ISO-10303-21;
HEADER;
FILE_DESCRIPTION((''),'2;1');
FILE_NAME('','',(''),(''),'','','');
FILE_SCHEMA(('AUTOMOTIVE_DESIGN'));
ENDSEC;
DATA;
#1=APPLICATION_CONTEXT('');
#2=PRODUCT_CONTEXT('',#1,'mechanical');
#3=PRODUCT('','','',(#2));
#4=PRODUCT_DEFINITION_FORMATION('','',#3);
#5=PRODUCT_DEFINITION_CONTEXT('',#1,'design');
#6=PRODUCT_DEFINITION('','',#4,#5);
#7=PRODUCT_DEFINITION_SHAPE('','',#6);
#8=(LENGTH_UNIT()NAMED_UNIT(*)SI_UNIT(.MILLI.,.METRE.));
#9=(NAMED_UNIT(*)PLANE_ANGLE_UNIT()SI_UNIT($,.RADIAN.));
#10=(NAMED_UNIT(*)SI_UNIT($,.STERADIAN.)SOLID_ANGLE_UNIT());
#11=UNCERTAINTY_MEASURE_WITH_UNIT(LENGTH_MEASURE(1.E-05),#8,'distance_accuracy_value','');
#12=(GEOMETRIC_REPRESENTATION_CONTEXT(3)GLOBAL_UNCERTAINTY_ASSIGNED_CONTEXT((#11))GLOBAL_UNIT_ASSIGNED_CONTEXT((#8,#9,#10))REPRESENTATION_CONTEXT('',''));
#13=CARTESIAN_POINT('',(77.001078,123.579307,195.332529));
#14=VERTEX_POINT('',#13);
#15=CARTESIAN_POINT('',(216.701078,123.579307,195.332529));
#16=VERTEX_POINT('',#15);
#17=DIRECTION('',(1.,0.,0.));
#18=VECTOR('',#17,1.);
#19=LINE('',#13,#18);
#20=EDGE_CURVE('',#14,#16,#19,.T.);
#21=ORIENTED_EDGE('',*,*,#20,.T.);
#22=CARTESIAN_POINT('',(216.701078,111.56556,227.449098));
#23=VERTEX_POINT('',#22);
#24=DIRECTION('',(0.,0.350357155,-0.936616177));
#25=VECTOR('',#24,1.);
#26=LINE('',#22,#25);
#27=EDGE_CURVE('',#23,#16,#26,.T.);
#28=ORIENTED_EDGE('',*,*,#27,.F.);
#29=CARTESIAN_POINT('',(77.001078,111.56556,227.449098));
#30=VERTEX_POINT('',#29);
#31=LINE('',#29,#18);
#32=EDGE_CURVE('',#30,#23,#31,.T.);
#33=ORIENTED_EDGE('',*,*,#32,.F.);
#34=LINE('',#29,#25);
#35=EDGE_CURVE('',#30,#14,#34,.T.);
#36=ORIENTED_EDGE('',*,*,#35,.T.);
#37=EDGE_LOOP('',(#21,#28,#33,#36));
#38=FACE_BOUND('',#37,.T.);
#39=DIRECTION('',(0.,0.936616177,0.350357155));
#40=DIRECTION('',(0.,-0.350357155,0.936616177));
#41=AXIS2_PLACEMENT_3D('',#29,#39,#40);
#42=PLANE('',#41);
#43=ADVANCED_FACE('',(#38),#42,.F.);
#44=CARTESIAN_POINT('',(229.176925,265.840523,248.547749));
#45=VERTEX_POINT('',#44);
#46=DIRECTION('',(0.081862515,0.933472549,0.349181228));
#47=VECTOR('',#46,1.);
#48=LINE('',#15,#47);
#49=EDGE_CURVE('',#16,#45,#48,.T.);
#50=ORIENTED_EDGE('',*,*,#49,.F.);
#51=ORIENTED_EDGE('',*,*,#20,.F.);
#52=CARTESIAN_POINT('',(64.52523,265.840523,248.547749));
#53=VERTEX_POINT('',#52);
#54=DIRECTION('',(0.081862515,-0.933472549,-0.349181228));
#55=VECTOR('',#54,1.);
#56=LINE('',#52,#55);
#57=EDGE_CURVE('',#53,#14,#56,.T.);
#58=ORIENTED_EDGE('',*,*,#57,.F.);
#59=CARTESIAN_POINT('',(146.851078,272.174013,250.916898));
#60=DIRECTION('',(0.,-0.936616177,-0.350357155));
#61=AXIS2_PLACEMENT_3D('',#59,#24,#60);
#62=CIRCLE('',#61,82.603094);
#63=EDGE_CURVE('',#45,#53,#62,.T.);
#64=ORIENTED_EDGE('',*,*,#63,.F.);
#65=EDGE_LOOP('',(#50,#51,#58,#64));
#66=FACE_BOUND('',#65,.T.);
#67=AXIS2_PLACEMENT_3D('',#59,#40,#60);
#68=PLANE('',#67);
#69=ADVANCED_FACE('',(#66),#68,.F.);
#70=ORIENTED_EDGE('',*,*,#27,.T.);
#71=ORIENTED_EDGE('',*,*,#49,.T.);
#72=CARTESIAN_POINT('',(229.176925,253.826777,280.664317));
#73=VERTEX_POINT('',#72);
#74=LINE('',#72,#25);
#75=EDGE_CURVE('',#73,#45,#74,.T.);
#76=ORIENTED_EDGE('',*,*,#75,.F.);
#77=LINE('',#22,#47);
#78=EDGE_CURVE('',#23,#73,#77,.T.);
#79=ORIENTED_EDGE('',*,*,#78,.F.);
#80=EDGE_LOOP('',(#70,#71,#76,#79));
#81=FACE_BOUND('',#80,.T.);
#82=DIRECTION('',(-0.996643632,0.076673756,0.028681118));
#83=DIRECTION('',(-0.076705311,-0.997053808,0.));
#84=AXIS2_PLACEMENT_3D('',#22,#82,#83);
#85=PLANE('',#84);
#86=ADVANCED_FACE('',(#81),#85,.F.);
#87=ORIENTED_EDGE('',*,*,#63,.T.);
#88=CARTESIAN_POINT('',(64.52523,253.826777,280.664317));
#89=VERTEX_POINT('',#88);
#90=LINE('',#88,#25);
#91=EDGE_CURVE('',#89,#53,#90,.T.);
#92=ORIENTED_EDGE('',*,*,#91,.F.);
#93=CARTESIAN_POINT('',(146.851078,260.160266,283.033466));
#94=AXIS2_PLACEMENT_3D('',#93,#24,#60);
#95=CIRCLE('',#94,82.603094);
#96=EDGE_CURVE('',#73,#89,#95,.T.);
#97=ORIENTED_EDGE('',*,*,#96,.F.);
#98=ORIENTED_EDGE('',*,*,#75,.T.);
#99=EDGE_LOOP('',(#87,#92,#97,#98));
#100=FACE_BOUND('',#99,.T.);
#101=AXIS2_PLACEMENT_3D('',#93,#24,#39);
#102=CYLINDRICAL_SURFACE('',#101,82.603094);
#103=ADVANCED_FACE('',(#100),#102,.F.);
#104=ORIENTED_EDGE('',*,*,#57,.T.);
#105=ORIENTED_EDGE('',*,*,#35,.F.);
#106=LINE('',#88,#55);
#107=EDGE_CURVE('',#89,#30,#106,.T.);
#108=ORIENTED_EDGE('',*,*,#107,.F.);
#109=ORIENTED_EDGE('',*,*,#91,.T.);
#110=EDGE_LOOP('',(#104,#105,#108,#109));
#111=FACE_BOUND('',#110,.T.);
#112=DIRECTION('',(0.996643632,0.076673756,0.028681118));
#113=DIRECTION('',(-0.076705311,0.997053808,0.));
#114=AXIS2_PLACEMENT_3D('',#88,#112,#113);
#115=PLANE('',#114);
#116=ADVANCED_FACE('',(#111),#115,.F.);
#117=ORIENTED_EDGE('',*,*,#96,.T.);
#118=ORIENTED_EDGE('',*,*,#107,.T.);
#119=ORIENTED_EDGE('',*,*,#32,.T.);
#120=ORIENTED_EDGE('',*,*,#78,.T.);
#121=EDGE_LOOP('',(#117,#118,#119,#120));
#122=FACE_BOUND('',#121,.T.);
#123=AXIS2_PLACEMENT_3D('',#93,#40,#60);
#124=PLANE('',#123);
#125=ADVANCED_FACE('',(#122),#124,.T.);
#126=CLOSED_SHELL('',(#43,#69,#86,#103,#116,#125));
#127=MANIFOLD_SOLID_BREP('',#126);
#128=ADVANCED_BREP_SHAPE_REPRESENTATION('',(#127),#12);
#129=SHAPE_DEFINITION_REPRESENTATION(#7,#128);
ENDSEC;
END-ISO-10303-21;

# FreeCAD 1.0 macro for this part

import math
import FreeCAD as App
import Part
import Sketcher
Q = App.Units.Quantity

doc = App.newDocument("Part")
body = doc.addObject("PartDesign::Body", "Body")

# Sketch on an angled plane
sketch1 = body.newObject("Sketcher::SketchObject", "Sketch")
sketch1.Placement = App.Placement(App.Vector(0, -48.929028, 130.802863), App.Rotation(App.Vector(1, 0, 0), App.Vector(0, 0.936616177, 0.350357155), App.Vector(0, -0.350357155, 0.936616177), "ZXY"))
sketch1.addGeometry(Part.LineSegment(App.Vector(65, 336, 0), App.Vector(77, 184, 0)), False)
sketch1.addGeometry(Part.LineSegment(App.Vector(77, 184, 0), App.Vector(217, 184, 0)), False)
sketch1.addGeometry(Part.LineSegment(App.Vector(217, 184, 0), App.Vector(229, 336, 0)), False)
sketch1.addGeometry(Part.ArcOfCircle(Part.Circle(App.Vector(147, 343, 0), App.Vector(0, 0, 1), 83), math.radians(-175), math.radians(-5)), False)
sketch1.addConstraint(Sketcher.Constraint("Coincident", 0, 2, 1, 1))
sketch1.addConstraint(Sketcher.Constraint("Coincident", 1, 2, 2, 1))
sketch1.addConstraint(Sketcher.Constraint("Tangent", 2, 2, 3, 2))
sketch1.addConstraint(Sketcher.Constraint("Tangent", 3, 1, 0, 1))
sketch1.addConstraint(Sketcher.Constraint("Horizontal", 1))
sketch1.addConstraint(Sketcher.Constraint("Horizontal", 2, 2, 3, 1))
sketch1.addConstraint(Sketcher.Constraint("Distance", 0, Q("6 in")))
sketch1.addConstraint(Sketcher.Constraint("DistanceX", 1, 1, 1, 2, Q("5.5 in")))
sketch1.addConstraint(Sketcher.Constraint("Radius", 3, Q("82.603094 mm")))
sketch1.addConstraint(Sketcher.Constraint("DistanceX", -1, 1, 3, 1, Q("64.52523 mm")))
sketch1.addConstraint(Sketcher.Constraint("DistanceY", -1, 1, 3, 3, Q("342.833114 mm")))
pad1 = body.newObject("PartDesign::Pad", "Pad")
pad1.Profile = sketch1
pad1.Length = Q("1.35 in")

doc.recompute()
